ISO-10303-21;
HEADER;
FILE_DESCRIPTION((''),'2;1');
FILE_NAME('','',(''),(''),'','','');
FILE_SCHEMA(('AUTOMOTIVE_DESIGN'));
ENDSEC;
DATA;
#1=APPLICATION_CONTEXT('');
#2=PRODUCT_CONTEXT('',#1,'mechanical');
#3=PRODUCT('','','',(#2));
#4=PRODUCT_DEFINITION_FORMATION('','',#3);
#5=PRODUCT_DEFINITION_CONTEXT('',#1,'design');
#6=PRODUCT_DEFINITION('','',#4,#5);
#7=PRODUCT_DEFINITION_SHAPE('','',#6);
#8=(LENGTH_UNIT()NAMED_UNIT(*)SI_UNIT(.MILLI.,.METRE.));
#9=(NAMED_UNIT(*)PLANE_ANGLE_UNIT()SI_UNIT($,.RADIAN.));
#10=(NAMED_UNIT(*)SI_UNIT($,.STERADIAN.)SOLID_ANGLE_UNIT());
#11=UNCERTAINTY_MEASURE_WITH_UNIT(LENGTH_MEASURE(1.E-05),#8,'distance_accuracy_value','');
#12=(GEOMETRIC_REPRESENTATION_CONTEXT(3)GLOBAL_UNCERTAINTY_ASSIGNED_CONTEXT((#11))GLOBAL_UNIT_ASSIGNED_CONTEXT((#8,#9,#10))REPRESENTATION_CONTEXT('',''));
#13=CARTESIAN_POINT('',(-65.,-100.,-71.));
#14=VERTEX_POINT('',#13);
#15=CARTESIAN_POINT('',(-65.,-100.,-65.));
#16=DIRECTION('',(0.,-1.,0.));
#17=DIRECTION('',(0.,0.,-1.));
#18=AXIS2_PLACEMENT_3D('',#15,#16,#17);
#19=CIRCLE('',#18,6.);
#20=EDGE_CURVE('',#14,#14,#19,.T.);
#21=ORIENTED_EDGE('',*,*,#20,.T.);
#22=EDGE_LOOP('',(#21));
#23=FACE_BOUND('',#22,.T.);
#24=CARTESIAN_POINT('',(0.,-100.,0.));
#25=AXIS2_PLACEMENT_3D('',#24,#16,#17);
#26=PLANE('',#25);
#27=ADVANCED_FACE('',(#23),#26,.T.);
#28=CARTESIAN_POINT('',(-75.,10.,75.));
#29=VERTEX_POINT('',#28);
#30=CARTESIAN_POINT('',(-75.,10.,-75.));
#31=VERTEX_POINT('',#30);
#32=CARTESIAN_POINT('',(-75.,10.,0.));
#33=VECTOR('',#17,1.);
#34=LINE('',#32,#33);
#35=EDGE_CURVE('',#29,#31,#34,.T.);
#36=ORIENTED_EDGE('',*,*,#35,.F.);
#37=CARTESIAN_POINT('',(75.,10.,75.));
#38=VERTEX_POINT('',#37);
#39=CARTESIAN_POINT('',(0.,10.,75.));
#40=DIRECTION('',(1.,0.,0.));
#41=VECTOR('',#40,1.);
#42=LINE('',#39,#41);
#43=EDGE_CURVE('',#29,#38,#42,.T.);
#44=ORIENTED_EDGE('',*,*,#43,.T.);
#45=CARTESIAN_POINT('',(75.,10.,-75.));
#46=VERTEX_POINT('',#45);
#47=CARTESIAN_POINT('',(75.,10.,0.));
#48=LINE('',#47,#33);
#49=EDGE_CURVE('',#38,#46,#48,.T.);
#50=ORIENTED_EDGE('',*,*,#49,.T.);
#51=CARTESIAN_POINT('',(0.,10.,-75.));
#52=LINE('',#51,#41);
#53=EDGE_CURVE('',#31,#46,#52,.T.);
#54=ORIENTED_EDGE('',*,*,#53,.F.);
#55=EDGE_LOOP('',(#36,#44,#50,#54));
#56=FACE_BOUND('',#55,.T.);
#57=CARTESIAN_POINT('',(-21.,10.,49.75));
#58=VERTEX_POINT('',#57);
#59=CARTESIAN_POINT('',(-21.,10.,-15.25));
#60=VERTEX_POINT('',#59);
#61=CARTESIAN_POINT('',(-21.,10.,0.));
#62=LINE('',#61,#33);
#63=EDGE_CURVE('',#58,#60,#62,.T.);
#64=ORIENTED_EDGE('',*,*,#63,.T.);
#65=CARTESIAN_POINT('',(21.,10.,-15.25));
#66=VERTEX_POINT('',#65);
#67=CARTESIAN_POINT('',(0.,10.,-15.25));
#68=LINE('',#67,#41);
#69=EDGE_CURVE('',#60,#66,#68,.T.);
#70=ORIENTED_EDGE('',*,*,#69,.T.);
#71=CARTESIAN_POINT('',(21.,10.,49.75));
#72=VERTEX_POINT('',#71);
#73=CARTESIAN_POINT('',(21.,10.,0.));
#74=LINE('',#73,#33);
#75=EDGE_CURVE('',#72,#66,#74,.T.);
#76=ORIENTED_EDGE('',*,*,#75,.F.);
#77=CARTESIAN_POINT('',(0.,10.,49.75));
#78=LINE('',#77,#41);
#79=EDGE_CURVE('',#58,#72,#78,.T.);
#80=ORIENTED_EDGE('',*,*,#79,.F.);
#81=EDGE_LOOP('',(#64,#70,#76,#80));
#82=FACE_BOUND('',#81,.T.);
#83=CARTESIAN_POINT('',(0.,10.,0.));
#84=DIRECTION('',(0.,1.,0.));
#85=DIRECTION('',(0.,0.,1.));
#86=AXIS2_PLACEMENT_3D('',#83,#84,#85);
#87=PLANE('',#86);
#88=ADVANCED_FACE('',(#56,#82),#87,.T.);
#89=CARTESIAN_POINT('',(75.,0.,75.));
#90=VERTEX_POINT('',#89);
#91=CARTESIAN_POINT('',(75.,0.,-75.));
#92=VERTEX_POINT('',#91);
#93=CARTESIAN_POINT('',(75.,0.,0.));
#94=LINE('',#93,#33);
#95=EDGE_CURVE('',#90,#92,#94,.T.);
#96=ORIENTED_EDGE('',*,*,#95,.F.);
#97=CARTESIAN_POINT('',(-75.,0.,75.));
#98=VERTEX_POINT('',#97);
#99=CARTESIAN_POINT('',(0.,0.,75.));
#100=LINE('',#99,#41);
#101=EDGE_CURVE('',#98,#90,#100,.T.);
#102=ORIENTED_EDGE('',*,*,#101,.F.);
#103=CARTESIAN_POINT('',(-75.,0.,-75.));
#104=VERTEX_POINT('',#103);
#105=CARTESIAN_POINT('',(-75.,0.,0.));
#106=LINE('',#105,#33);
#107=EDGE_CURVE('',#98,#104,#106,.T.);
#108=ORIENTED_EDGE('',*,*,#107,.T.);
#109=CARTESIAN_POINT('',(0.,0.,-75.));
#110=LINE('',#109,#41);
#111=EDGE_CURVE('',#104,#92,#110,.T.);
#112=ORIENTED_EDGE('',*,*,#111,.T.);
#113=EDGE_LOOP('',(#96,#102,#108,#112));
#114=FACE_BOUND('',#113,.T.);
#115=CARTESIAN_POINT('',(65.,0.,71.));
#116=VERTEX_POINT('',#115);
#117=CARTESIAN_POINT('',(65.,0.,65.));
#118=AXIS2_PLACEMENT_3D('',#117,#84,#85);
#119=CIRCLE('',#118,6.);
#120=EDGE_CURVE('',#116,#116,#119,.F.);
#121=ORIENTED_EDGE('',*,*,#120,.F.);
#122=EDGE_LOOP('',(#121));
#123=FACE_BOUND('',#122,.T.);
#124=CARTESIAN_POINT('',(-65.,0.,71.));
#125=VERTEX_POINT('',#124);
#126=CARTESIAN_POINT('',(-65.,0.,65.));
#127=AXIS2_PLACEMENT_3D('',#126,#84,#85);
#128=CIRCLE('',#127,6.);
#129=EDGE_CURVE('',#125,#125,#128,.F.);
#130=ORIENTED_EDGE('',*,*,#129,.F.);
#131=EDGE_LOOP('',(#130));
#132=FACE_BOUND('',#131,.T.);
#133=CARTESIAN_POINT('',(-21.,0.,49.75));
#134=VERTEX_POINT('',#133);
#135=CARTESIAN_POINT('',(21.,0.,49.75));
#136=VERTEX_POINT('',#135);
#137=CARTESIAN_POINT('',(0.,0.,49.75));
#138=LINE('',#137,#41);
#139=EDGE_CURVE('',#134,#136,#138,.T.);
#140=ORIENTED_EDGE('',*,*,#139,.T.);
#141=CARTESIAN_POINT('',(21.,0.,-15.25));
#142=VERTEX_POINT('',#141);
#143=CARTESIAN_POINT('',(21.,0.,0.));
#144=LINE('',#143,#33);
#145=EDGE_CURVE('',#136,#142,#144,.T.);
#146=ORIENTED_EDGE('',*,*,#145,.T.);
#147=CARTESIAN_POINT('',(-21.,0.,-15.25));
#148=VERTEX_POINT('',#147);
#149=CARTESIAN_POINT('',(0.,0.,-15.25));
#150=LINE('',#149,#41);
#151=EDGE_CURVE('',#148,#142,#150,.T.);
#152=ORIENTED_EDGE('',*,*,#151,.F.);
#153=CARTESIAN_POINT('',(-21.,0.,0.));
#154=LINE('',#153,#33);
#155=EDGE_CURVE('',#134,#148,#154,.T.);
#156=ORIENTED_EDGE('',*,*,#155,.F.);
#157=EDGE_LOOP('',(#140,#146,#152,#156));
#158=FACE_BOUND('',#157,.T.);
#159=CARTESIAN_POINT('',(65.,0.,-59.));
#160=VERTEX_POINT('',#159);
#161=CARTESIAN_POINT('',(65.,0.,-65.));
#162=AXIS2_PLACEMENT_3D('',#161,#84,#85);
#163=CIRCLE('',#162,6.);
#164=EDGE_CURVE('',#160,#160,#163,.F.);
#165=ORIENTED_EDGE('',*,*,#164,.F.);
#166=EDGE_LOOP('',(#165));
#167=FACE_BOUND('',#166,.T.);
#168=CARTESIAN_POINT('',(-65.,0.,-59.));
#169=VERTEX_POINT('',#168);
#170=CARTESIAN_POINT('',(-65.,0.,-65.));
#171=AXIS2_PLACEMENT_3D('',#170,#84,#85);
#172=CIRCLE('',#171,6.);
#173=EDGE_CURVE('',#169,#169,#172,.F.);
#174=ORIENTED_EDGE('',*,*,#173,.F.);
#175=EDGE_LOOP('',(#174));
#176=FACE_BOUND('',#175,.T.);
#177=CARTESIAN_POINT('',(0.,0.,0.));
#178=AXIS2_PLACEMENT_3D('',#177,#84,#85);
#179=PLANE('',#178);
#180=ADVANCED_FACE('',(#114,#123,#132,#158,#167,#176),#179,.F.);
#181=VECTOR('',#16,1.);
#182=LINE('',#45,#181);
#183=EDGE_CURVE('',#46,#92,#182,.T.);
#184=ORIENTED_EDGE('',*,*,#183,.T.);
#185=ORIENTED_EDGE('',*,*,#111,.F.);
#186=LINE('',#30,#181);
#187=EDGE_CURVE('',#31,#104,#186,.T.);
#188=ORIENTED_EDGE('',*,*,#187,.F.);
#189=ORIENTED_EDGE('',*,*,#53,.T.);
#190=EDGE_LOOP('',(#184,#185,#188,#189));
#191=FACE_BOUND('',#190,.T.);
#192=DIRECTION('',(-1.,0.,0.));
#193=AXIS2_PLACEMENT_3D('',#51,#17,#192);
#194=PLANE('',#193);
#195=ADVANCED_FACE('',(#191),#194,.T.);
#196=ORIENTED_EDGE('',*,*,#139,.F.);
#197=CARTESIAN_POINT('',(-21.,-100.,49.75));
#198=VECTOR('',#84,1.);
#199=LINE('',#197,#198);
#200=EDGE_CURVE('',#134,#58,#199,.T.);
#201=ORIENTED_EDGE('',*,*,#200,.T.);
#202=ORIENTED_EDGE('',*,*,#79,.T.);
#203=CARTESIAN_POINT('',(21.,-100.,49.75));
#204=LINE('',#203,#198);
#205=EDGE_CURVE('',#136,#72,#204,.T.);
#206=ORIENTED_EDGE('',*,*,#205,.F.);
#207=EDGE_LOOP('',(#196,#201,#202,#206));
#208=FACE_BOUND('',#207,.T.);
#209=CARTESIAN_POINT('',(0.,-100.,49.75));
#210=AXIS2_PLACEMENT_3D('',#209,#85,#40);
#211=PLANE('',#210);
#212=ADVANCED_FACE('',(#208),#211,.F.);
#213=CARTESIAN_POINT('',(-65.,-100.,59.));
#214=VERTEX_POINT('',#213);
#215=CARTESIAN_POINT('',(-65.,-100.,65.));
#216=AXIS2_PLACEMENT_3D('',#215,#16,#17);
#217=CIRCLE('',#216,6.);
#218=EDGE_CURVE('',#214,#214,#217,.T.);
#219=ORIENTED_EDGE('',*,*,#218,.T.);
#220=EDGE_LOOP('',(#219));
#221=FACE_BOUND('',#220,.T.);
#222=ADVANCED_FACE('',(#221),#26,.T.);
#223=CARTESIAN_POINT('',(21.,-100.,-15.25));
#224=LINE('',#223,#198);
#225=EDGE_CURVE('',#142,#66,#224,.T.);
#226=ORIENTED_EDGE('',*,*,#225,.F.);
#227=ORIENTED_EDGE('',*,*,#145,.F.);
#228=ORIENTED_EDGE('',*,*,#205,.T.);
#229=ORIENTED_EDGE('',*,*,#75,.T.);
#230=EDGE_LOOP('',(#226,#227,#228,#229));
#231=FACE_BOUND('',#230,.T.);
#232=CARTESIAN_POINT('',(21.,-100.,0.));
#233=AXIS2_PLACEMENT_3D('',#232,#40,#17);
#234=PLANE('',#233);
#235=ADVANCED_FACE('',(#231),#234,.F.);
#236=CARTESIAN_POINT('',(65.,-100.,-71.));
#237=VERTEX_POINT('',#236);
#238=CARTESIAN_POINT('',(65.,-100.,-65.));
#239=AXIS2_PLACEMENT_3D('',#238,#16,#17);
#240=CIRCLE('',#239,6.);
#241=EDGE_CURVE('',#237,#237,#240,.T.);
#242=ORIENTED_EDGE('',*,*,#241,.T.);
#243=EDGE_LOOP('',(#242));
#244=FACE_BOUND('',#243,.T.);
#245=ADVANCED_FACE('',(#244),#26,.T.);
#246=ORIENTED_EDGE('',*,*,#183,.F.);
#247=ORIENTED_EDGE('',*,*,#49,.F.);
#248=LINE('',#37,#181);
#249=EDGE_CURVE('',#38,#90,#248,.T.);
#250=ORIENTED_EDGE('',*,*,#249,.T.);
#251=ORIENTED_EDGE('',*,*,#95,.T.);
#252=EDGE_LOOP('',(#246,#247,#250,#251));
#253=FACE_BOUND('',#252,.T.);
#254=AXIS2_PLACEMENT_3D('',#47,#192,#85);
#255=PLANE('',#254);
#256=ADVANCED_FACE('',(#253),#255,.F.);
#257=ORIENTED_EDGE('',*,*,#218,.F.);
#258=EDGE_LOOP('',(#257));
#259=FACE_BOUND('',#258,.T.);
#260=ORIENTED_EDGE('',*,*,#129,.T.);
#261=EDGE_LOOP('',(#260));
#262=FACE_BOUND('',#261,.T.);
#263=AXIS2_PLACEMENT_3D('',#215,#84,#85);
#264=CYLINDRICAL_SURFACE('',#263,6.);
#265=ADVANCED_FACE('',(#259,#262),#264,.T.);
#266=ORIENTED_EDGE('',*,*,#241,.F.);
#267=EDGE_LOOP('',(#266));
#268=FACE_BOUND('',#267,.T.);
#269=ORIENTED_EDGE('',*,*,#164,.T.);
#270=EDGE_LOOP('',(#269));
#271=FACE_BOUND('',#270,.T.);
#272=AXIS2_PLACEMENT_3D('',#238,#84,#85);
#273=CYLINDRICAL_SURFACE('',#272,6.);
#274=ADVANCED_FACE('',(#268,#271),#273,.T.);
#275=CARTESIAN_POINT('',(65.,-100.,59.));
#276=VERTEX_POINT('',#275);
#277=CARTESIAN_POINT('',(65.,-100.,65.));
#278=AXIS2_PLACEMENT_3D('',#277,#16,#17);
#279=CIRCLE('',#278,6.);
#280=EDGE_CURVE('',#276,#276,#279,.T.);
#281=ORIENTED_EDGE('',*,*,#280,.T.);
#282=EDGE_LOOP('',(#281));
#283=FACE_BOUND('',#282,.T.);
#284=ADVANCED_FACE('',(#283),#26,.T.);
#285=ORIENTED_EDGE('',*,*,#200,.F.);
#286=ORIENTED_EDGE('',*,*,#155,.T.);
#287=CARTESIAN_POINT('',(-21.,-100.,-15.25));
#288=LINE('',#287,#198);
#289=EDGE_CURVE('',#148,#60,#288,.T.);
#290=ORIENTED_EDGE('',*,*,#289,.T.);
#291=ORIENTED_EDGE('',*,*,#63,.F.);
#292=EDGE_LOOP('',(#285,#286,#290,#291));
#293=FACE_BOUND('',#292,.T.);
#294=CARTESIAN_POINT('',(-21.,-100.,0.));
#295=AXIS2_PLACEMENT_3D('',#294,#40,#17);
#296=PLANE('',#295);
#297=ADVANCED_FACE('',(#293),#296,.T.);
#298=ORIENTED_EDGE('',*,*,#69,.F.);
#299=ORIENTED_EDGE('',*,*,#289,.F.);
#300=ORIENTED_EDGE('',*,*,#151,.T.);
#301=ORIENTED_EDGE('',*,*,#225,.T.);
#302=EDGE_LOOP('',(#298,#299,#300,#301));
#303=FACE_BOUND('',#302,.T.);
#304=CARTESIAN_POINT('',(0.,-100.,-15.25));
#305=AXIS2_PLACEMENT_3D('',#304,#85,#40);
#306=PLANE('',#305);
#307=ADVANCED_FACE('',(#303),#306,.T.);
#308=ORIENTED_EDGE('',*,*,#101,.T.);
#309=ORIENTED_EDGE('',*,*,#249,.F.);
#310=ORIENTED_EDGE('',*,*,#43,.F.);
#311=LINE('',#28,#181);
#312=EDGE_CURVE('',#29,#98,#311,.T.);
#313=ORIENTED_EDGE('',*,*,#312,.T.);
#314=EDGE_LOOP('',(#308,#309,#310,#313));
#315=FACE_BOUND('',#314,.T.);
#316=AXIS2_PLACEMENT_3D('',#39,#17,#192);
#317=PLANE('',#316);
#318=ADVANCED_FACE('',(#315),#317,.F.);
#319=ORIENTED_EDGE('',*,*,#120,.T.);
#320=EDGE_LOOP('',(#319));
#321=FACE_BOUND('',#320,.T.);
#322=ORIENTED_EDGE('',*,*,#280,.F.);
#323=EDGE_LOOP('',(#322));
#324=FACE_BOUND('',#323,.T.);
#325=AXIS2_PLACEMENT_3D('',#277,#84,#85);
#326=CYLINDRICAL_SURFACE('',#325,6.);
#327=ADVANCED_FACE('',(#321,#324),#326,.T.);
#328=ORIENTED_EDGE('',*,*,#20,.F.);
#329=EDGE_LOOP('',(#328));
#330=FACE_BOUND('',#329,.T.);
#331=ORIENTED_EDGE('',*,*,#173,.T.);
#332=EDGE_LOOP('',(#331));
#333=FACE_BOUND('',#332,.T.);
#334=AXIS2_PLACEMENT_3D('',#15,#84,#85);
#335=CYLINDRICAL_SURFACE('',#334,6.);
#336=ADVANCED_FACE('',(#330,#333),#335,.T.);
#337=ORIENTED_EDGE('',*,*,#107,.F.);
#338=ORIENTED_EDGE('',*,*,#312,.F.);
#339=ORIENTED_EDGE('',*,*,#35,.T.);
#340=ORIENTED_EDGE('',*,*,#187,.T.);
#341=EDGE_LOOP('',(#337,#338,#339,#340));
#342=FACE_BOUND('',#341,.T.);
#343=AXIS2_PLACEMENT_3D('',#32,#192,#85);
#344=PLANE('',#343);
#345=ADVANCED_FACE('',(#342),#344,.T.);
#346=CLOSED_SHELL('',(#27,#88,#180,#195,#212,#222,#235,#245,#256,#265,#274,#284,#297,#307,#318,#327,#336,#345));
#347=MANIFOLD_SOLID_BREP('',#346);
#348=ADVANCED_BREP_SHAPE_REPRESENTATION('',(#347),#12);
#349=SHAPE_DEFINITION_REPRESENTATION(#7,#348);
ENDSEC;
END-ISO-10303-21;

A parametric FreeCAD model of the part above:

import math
import FreeCAD as App
import Part
import Sketcher


def add_polygon(sketch, points):
    """Adds a closed chain of lines whose ends are joined by coincident constraints."""
    first, n = sketch.GeometryCount, len(points)
    for a, b in zip(points, points[1:] + points[:1]):
        sketch.addGeometry(Part.LineSegment(App.Vector(*a, 0), App.Vector(*b, 0)), False)
    for i in range(n):
        sketch.addConstraint(Sketcher.Constraint("Coincident", first + i, 2, first + (i + 1) % n, 1))

doc = App.newDocument("Part")
params = doc.addObject("Spreadsheet::Sheet", "Params")
for row, (alias, value) in enumerate([
    ("sketch1_width", "150 mm"),
    ("pad1_length", "10 mm"),
    ("sketch2_radius", "6 mm"),
    ("pad2_length", "100 mm"),
    ("sketch3_width", "42 mm"),
    ("sketch3_height", "65 mm"),
], start=1):
    params.set(f"A{row}", alias)
    params.set(f"B{row}", "=" + value)
    params.setAlias(f"B{row}", alias)

body = doc.addObject("PartDesign::Body", "Body")

# Sketch on XZ plane
sketch1 = body.newObject("Sketcher::SketchObject", "Sketch")
sketch1.AttachmentSupport = (doc.getObject("XZ_Plane"), [""])
sketch1.MapMode = "FlatFace"
add_polygon(sketch1, [(-75, -75), (-75, 75), (75, 75), (75, -75)])  # lines 0-3
sketch1.addConstraint([
    Sketcher.Constraint("Vertical", 0),
    Sketcher.Constraint("Horizontal", 1),
    Sketcher.Constraint("Vertical", 2),
    Sketcher.Constraint("Horizontal", 3),
    Sketcher.Constraint("Symmetric", 0, 2, 2, 2, -1, 1),
    Sketcher.Constraint("Equal", 3, 0),
    Sketcher.Constraint("DistanceX", 1, 1, 1, 2, 150.0),
])
sketch1.setExpression("Constraints[10]", "Params.sketch1_width")
pad1 = body.newObject("PartDesign::Pad", "Pad")
pad1.Profile = sketch1
pad1.setExpression("Length", "Params.pad1_length")
pad1.Reversed = True

# Sketch on XZ plane
sketch2 = body.newObject("Sketcher::SketchObject", "Sketch001")
sketch2.AttachmentSupport = (doc.getObject("XZ_Plane"), [""])
sketch2.MapMode = "FlatFace"
sketch2.addGeometry([
    Part.ArcOfCircle(Part.Circle(App.Vector(-65, 65, 0), App.Vector(0, 0, 1), 6), math.radians(0), math.radians(270)),  # 0
    Part.ArcOfCircle(Part.Circle(App.Vector(-65, 65, 0), App.Vector(0, 0, 1), 6), math.radians(-90), math.radians(0)),  # 1
    Part.ArcOfCircle(Part.Circle(App.Vector(65, 65, 0), App.Vector(0, 0, 1), 6), math.radians(180), math.radians(270)),  # 2
    Part.ArcOfCircle(Part.Circle(App.Vector(65, 65, 0), App.Vector(0, 0, 1), 6), math.radians(-90), math.radians(0)),  # 3
    Part.ArcOfCircle(Part.Circle(App.Vector(65, 65, 0), App.Vector(0, 0, 1), 6), math.radians(0), math.radians(180)),  # 4
    Part.ArcOfCircle(Part.Circle(App.Vector(-65, -65, 0), App.Vector(0, 0, 1), 6), math.radians(0), math.radians(90)),  # 5
    Part.ArcOfCircle(Part.Circle(App.Vector(-65, -65, 0), App.Vector(0, 0, 1), 6), math.radians(90), math.radians(360)),  # 6
    Part.ArcOfCircle(Part.Circle(App.Vector(65, -65, 0), App.Vector(0, 0, 1), 6), math.radians(90), math.radians(180)),  # 7
    Part.ArcOfCircle(Part.Circle(App.Vector(65, -65, 0), App.Vector(0, 0, 1), 6), math.radians(180), math.radians(360)),  # 8
    Part.ArcOfCircle(Part.Circle(App.Vector(65, -65, 0), App.Vector(0, 0, 1), 6), math.radians(0), math.radians(90)),  # 9
], False)
sketch2.addConstraint([
    Sketcher.Constraint("Tangent", 0, 1, 1, 2),
    Sketcher.Constraint("Coincident", 1, 1, 0, 2),
    Sketcher.Constraint("Tangent", 2, 2, 3, 1),
    Sketcher.Constraint("Tangent", 3, 2, 4, 1),
    Sketcher.Constraint("Tangent", 4, 2, 2, 1),
    Sketcher.Constraint("Tangent", 5, 1, 6, 2),
    Sketcher.Constraint("Coincident", 6, 1, 5, 2),
    Sketcher.Constraint("Tangent", 7, 2, 8, 1),
    Sketcher.Constraint("Tangent", 8, 2, 9, 1),
    Sketcher.Constraint("Tangent", 9, 2, 7, 1),
    Sketcher.Constraint("Equal", 1, 2),
    Sketcher.Constraint("Equal", 4, 5),
    Sketcher.Constraint("Equal", 6, 7),
    Sketcher.Constraint("Symmetric", 2, 3, 5, 3, -1, 1),
    Sketcher.Constraint("Symmetric", 0, 3, 7, 3, -1, 1),
    Sketcher.Constraint("Symmetric", 0, 3, 2, 3, -2),
    Sketcher.Constraint("Horizontal", 4, 3, 0, 1),
    Sketcher.Constraint("Horizontal", 0, 1, 3, 2),
    Sketcher.Constraint("Horizontal", 3, 2, 4, 2),
    Sketcher.Constraint("Horizontal", 9, 3, 5, 1),
    Sketcher.Constraint("Horizontal", 5, 1, 7, 2),
    Sketcher.Constraint("Horizontal", 7, 2, 8, 2),
    Sketcher.Constraint("Vertical", 6, 3, 1, 1),
    Sketcher.Constraint("Vertical", 9, 3, 2, 2),
    Sketcher.Constraint("Vertical", 1, 1, 6, 1),
    Sketcher.Constraint("Vertical", 2, 2, 9, 2),
    Sketcher.Constraint("Radius", 0, 6.0),
    Sketcher.Constraint("DistanceX", 0, 3, -1, 1, 65.0),
    Sketcher.Constraint("DistanceY", -1, 1, 0, 3, 65.0),
])
sketch2.setExpression("Constraints[26]", "Params.sketch2_radius")
pad2 = body.newObject("PartDesign::Pad", "Pad001")
pad2.Profile = sketch2
pad2.setExpression("Length", "Params.pad2_length")

# Sketch on XZ plane
sketch3 = body.newObject("Sketcher::SketchObject", "Sketch002")
sketch3.AttachmentSupport = (doc.getObject("XZ_Plane"), [""])
sketch3.MapMode = "FlatFace"
sketch3.AttachmentOffset = App.Placement(App.Vector(0, 0, -10), App.Rotation())
add_polygon(sketch3, [(-21, -15), (-21, 50), (21, 50), (21, -15)])  # lines 0-3
sketch3.addConstraint([
    Sketcher.Constraint("Vertical", 0),
    Sketcher.Constraint("Horizontal", 1),
    Sketcher.Constraint("Vertical", 2),
    Sketcher.Constraint("Horizontal", 3),
    Sketcher.Constraint("DistanceX", 1, 1, 1, 2, 42.0),
    Sketcher.Constraint("DistanceY", 0, 1, 0, 2, 65.0),
    Sketcher.Constraint("DistanceX", 0, 2, -1, 1, 21.0),
    Sketcher.Constraint("DistanceY", -1, 1, 0, 2, 49.75),
])
sketch3.setExpression("Constraints[8]", "Params.sketch3_width")
sketch3.setExpression("Constraints[9]", "Params.sketch3_height")
pocket1 = body.newObject("PartDesign::Pocket", "Pocket")
pocket1.Profile = sketch3
pocket1.Type = "ThroughAll"
pocket1.Reversed = True

doc.recompute()
